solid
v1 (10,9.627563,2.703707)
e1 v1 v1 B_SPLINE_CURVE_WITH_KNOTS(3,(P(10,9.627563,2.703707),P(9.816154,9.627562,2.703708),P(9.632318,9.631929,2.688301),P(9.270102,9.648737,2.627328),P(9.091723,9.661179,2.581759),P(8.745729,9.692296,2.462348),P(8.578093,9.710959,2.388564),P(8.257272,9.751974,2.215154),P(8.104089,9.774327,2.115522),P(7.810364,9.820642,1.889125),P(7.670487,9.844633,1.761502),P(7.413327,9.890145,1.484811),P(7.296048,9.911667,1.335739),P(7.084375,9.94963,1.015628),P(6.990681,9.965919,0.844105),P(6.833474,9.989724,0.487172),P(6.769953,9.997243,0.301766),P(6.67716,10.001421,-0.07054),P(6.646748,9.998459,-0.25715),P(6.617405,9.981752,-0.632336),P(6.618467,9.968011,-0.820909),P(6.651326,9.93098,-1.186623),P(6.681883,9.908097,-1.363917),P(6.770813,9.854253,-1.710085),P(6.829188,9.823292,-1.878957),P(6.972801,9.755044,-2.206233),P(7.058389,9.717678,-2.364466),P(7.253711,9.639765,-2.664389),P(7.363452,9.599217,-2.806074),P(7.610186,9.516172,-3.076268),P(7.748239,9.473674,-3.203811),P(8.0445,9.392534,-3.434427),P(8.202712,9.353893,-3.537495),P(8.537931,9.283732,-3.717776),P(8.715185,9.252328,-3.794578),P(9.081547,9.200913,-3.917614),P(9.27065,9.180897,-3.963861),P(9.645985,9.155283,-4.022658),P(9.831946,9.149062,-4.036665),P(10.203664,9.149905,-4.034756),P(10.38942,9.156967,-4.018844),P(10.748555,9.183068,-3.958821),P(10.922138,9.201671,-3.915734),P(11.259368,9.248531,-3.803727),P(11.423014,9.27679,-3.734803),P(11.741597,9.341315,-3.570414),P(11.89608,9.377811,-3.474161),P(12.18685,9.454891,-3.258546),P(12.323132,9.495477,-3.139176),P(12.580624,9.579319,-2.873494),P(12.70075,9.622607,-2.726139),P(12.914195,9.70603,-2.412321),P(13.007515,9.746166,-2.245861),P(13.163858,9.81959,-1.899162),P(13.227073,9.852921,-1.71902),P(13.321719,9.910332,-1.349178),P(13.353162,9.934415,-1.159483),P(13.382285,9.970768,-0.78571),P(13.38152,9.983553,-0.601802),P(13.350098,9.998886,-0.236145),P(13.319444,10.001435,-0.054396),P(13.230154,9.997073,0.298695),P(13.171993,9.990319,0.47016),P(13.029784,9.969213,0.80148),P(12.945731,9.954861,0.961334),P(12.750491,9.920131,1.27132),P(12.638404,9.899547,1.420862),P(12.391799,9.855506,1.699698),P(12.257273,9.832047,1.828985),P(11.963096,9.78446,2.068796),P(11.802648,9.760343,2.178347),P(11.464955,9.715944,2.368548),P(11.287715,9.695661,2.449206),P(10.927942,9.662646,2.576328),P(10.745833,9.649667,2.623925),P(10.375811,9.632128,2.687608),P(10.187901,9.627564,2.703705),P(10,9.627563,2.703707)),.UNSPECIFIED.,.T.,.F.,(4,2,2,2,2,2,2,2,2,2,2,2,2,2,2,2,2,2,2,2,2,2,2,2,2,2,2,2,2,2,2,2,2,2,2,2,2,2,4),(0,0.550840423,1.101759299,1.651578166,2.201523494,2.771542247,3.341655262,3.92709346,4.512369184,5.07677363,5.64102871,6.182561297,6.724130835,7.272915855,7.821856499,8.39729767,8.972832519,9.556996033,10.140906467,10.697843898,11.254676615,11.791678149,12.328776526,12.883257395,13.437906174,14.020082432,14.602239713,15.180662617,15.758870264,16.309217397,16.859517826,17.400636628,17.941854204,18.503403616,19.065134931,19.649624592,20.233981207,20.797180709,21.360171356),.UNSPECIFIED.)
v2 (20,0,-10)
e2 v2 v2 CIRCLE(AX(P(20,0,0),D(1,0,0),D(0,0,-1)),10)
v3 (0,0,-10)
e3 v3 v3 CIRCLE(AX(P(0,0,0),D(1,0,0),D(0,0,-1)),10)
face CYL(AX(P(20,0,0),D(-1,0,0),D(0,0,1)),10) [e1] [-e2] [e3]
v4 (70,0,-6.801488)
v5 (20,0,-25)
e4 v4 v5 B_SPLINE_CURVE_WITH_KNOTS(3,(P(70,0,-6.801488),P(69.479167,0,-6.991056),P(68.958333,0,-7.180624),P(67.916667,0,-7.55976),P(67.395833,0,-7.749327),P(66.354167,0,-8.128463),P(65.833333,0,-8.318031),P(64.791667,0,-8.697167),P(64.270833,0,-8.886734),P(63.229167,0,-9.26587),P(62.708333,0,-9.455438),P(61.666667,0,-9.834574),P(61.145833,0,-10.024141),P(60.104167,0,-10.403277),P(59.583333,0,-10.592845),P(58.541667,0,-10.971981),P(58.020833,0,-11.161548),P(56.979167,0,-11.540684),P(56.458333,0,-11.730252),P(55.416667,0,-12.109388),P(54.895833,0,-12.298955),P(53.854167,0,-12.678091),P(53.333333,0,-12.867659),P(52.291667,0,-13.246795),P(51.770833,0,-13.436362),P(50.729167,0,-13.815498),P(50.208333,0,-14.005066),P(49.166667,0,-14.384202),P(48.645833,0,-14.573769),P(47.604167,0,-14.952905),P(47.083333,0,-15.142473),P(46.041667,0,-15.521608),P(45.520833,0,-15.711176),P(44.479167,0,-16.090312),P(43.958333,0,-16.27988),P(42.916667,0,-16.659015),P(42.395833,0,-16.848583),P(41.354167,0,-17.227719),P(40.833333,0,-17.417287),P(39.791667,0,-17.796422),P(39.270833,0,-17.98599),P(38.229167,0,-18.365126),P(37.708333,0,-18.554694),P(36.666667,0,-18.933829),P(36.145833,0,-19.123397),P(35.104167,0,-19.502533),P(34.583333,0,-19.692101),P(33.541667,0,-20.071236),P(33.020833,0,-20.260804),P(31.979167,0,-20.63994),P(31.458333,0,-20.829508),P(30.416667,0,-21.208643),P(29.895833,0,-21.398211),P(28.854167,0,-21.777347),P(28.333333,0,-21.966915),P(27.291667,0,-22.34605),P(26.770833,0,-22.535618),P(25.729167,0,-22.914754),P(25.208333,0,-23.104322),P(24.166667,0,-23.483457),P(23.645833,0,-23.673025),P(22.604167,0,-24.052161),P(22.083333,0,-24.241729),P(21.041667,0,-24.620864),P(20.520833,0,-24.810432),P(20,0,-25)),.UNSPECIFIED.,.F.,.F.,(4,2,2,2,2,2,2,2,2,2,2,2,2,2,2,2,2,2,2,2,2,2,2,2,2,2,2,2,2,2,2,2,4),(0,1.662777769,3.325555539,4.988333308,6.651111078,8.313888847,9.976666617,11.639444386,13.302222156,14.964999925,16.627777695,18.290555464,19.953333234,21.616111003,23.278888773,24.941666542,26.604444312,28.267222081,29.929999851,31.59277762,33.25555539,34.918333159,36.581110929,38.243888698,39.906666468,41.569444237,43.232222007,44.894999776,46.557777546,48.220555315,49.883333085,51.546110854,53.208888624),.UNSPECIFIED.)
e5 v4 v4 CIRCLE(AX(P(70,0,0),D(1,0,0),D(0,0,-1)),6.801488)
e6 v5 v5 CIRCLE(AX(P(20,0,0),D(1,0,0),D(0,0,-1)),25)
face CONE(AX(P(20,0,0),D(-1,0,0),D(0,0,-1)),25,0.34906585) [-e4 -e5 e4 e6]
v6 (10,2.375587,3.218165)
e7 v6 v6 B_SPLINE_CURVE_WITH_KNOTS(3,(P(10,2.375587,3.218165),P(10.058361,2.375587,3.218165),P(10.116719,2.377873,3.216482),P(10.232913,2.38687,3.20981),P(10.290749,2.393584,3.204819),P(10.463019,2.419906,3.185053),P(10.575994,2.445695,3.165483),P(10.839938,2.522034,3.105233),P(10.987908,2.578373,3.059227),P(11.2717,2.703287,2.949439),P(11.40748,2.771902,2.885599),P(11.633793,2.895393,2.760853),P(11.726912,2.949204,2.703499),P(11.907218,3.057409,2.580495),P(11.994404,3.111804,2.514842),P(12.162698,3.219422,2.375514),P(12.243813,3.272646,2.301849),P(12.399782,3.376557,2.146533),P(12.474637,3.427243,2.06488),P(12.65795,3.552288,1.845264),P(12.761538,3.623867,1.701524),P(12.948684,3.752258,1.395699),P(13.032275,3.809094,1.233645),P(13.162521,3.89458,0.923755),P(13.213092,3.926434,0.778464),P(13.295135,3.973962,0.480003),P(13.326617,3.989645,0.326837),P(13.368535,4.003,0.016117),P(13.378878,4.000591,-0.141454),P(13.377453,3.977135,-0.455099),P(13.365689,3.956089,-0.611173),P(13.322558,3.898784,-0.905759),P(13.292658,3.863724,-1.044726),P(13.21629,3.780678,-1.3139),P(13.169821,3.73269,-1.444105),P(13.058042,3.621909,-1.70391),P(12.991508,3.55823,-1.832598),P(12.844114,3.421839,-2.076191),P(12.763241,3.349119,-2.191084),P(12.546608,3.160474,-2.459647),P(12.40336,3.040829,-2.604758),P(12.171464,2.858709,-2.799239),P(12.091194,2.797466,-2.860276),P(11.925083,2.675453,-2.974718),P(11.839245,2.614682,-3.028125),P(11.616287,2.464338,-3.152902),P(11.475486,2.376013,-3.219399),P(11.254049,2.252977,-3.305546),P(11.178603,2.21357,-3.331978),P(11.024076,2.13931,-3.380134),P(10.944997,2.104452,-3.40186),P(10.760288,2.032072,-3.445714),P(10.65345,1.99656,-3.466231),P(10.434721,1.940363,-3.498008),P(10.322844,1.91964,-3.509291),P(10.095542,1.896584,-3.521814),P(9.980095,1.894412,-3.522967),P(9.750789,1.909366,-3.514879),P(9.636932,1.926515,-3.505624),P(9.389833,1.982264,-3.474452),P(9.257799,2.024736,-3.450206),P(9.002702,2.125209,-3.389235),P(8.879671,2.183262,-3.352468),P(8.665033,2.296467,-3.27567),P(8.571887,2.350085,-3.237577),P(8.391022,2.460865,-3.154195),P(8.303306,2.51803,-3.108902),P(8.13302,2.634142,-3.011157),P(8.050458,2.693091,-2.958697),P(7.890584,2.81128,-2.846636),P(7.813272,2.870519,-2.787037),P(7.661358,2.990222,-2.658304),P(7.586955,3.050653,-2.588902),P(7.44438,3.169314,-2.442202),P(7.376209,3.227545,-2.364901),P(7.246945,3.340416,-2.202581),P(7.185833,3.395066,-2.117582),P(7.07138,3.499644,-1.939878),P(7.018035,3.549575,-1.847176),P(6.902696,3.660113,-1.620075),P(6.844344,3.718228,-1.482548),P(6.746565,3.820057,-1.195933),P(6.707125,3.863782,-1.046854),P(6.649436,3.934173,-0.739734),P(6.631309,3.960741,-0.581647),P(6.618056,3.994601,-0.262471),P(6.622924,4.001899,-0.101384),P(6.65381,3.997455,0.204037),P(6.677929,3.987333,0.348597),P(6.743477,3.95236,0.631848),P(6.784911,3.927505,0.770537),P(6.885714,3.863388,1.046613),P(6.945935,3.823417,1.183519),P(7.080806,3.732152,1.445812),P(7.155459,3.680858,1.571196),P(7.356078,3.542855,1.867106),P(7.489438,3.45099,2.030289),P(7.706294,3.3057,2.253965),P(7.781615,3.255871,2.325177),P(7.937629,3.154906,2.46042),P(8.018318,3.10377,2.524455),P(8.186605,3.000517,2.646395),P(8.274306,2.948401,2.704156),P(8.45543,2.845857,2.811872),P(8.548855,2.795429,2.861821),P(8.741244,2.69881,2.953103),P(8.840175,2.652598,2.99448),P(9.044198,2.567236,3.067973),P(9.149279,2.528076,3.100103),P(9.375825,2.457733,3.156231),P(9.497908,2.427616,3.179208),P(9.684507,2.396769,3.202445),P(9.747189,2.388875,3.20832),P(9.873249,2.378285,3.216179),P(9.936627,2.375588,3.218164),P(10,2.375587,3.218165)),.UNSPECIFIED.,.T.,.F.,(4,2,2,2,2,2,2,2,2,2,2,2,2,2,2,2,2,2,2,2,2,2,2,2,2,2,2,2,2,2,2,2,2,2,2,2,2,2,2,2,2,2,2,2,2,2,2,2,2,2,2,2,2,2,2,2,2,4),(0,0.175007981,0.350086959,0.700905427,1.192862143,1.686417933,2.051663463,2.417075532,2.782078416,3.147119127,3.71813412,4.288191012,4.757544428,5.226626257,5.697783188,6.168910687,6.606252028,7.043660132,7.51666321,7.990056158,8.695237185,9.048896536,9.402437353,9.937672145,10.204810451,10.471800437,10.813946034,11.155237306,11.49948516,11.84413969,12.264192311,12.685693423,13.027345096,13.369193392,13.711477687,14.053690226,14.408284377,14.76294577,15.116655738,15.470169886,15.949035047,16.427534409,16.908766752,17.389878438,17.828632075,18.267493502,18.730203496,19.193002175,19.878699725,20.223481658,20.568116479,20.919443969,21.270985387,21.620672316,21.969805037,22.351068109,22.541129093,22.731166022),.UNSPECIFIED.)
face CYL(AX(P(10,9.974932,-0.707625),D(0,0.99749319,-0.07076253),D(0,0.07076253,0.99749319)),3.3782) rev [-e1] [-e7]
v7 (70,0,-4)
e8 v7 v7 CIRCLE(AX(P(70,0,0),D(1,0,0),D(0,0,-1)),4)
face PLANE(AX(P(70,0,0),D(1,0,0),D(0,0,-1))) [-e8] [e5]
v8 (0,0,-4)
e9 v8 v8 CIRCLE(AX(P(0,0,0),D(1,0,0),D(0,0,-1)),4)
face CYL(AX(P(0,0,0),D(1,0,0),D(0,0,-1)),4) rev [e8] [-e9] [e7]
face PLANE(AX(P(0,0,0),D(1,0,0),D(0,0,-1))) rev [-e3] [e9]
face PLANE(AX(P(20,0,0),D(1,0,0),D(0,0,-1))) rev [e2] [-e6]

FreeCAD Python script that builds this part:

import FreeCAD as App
import Part
import Sketcher
from FreeCAD import Vector
Q = App.Units.Quantity

doc = App.newDocument("Part")
body = doc.addObject("PartDesign::Body", "Body")

# Sketch on YZ plane
sketch1 = doc.addObject("Sketcher::SketchObject", "Sketch")
body.addObject(sketch1)
sketch1.AttachmentSupport = (doc.YZ_Plane, [""])
sketch1.MapMode = "FlatFace"
sketch1.addGeometry(Part.Circle(Vector(0, 0, 0), Vector(0, 0, 1), 10), False)
sketch1.addConstraint([
    Sketcher.Constraint("Coincident", 0, 3, -1, 1),
    Sketcher.Constraint("Diameter", 0, Q("20 mm")),
])
pad1 = doc.addObject("PartDesign::Pad", "Pad")
body.addObject(pad1)
pad1.Profile = sketch1
pad1.Length = 20

# Sketch on YZ plane
sketch2 = doc.addObject("Sketcher::SketchObject", "Sketch001")
body.addObject(sketch2)
sketch2.AttachmentSupport = (doc.YZ_Plane, [""])
sketch2.MapMode = "FlatFace"
sketch2.AttachmentOffset = App.Placement(Vector(0, 0, 20), App.Rotation())
sketch2.addGeometry(Part.Circle(Vector(0, 0, 0), Vector(0, 0, 1), 25), False)
sketch2.addConstraint([
    Sketcher.Constraint("Coincident", 0, 3, -1, 1),
    Sketcher.Constraint("Diameter", 0, Q("50 mm")),
])
pad2 = doc.addObject("PartDesign::Pad", "Pad001")
body.addObject(pad2)
pad2.Profile = sketch2
pad2.Length = 50
pad2.TaperAngle = -20

# Sketch on YZ plane
sketch3 = doc.addObject("Sketcher::SketchObject", "Sketch002")
body.addObject(sketch3)
sketch3.AttachmentSupport = (doc.YZ_Plane, [""])
sketch3.MapMode = "FlatFace"
sketch3.AttachmentOffset = App.Placement(Vector(0, 0, 70), App.Rotation())
sketch3.addGeometry(Part.Circle(Vector(0, 0, 0), Vector(0, 0, 1), 4), False)
sketch3.addConstraint([
    Sketcher.Constraint("Coincident", 0, 3, -1, 1),
    Sketcher.Constraint("Diameter", 0, Q("8 mm")),
])
pocket1 = doc.addObject("PartDesign::Pocket", "Pocket")
body.addObject(pocket1)
pocket1.Profile = sketch3
pocket1.Length = 70

# Sketch on an angled plane
sketch4 = doc.addObject("Sketcher::SketchObject", "Sketch003")
body.addObject(sketch4)
sketch4.Placement = App.Placement(Vector(10, 9.974932, -0.707625), App.Rotation(Vector(0, 0.07076253, 0.99749319), Vector(1, 0, 0), Vector(0, 0.99749319, -0.07076253), "ZXY"))
sketch4.addGeometry(Part.Circle(Vector(0, 0, 0), Vector(0, 0, 1), 3.4), False)
sketch4.addConstraint([
    Sketcher.Constraint("Coincident", 0, 3, -1, 1),
    Sketcher.Constraint("Diameter", 0, Q("6.7564 mm")),
])
pocket2 = doc.addObject("PartDesign::Pocket", "Pocket001")
body.addObject(pocket2)
pocket2.Profile = sketch4
pocket2.Length = 7.858093

doc.recompute()
